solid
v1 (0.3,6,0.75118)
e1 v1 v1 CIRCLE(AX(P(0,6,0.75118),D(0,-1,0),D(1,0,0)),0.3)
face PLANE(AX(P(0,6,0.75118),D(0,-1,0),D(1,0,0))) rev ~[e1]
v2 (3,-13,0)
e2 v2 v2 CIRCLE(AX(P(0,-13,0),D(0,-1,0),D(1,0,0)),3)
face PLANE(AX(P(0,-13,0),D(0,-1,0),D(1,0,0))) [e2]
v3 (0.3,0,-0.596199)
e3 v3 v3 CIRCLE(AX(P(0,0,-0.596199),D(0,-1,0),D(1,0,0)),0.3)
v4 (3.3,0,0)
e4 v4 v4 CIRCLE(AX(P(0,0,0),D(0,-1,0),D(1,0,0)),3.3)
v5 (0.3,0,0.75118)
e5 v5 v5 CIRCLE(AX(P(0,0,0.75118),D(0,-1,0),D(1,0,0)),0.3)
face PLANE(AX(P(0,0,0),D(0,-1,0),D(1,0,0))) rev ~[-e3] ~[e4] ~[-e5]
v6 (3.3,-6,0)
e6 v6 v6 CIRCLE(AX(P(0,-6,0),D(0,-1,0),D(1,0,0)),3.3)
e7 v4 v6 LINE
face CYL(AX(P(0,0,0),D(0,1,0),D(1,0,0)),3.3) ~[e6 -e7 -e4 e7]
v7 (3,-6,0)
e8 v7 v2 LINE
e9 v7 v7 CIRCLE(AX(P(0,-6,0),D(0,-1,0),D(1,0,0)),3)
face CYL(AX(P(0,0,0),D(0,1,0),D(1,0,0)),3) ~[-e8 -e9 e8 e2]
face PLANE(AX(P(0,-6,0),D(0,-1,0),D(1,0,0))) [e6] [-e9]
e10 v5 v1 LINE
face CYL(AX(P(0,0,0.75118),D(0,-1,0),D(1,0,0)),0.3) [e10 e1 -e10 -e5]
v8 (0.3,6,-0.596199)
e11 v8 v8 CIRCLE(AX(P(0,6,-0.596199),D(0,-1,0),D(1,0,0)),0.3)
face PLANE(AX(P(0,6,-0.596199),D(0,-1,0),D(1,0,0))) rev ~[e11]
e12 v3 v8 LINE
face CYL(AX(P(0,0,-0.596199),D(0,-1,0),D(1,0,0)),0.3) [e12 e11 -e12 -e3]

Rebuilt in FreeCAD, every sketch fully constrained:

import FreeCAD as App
import Part
import Sketcher

V = App.Vector
Q = App.Units.Quantity

doc = App.newDocument("Part")
body = doc.addObject("PartDesign::Body", "Body")

# Sketch on XZ plane
sketch1 = body.newObject("Sketcher::SketchObject", "Sketch")
sketch1.AttachmentSupport = (doc.getObject("XZ_Plane"), [""])
sketch1.MapMode = "FlatFace"
sketch1.addGeometry(Part.Circle(V(0, 0, 0), V(0, 0, 1), 3), False)
sketch1.addConstraint(Sketcher.Constraint("Coincident", 0, 3, -1, 1))
sketch1.addConstraint(Sketcher.Constraint("Diameter", 0, Q("6 mm")))
pad1 = body.newObject("PartDesign::Pad", "Pad")
pad1.Profile = sketch1
pad1.Length = 13

# Sketch on XZ plane
sketch2 = body.newObject("Sketcher::SketchObject", "Sketch001")
sketch2.AttachmentSupport = (doc.getObject("XZ_Plane"), [""])
sketch2.MapMode = "FlatFace"
sketch2.addGeometry(Part.Circle(V(0, 0, 0), V(0, 0, 1), 3.3), False)
sketch2.addGeometry(Part.Circle(V(0, 0, 0), V(0, 0, 1), 3), False)
sketch2.addConstraint(Sketcher.Constraint("Coincident", 0, 3, -1, 1))
sketch2.addConstraint(Sketcher.Constraint("Coincident", 1, 3, -1, 1))
sketch2.addConstraint(Sketcher.Constraint("Diameter", 1, Q("6 mm")))
sketch2.addConstraint(Sketcher.Constraint("Diameter", 0, Q("6.6 mm")))
pad2 = body.newObject("PartDesign::Pad", "Pad001")
pad2.Profile = sketch2
pad2.Length = 6

# Sketch on XZ plane
sketch3 = body.newObject("Sketcher::SketchObject", "Sketch002")
sketch3.AttachmentSupport = (doc.getObject("XZ_Plane"), [""])
sketch3.MapMode = "FlatFace"
sketch3.addGeometry(Part.Circle(V(0, 0.75, 0), V(0, 0, 1), 0.3), False)
sketch3.addGeometry(Part.Circle(V(0, -0.6, 0), V(0, 0, 1), 0.3), False)
sketch3.addConstraint(Sketcher.Constraint("Equal", 0, 1))
sketch3.addConstraint(Sketcher.Constraint("PointOnObject", 0, 3, -2))
sketch3.addConstraint(Sketcher.Constraint("PointOnObject", 1, 3, -2))
sketch3.addConstraint(Sketcher.Constraint("Diameter", 0, Q("0.6 mm")))
sketch3.addConstraint(Sketcher.Constraint("DistanceY", 1, 3, -1, 1, Q("0.596199 mm")))
sketch3.addConstraint(Sketcher.Constraint("DistanceY", -1, 1, 0, 3, Q("0.75118 mm")))
pad3 = body.newObject("PartDesign::Pad", "Pad002")
pad3.Profile = sketch3
pad3.Length = 6
pad3.Reversed = True

doc.recompute()
